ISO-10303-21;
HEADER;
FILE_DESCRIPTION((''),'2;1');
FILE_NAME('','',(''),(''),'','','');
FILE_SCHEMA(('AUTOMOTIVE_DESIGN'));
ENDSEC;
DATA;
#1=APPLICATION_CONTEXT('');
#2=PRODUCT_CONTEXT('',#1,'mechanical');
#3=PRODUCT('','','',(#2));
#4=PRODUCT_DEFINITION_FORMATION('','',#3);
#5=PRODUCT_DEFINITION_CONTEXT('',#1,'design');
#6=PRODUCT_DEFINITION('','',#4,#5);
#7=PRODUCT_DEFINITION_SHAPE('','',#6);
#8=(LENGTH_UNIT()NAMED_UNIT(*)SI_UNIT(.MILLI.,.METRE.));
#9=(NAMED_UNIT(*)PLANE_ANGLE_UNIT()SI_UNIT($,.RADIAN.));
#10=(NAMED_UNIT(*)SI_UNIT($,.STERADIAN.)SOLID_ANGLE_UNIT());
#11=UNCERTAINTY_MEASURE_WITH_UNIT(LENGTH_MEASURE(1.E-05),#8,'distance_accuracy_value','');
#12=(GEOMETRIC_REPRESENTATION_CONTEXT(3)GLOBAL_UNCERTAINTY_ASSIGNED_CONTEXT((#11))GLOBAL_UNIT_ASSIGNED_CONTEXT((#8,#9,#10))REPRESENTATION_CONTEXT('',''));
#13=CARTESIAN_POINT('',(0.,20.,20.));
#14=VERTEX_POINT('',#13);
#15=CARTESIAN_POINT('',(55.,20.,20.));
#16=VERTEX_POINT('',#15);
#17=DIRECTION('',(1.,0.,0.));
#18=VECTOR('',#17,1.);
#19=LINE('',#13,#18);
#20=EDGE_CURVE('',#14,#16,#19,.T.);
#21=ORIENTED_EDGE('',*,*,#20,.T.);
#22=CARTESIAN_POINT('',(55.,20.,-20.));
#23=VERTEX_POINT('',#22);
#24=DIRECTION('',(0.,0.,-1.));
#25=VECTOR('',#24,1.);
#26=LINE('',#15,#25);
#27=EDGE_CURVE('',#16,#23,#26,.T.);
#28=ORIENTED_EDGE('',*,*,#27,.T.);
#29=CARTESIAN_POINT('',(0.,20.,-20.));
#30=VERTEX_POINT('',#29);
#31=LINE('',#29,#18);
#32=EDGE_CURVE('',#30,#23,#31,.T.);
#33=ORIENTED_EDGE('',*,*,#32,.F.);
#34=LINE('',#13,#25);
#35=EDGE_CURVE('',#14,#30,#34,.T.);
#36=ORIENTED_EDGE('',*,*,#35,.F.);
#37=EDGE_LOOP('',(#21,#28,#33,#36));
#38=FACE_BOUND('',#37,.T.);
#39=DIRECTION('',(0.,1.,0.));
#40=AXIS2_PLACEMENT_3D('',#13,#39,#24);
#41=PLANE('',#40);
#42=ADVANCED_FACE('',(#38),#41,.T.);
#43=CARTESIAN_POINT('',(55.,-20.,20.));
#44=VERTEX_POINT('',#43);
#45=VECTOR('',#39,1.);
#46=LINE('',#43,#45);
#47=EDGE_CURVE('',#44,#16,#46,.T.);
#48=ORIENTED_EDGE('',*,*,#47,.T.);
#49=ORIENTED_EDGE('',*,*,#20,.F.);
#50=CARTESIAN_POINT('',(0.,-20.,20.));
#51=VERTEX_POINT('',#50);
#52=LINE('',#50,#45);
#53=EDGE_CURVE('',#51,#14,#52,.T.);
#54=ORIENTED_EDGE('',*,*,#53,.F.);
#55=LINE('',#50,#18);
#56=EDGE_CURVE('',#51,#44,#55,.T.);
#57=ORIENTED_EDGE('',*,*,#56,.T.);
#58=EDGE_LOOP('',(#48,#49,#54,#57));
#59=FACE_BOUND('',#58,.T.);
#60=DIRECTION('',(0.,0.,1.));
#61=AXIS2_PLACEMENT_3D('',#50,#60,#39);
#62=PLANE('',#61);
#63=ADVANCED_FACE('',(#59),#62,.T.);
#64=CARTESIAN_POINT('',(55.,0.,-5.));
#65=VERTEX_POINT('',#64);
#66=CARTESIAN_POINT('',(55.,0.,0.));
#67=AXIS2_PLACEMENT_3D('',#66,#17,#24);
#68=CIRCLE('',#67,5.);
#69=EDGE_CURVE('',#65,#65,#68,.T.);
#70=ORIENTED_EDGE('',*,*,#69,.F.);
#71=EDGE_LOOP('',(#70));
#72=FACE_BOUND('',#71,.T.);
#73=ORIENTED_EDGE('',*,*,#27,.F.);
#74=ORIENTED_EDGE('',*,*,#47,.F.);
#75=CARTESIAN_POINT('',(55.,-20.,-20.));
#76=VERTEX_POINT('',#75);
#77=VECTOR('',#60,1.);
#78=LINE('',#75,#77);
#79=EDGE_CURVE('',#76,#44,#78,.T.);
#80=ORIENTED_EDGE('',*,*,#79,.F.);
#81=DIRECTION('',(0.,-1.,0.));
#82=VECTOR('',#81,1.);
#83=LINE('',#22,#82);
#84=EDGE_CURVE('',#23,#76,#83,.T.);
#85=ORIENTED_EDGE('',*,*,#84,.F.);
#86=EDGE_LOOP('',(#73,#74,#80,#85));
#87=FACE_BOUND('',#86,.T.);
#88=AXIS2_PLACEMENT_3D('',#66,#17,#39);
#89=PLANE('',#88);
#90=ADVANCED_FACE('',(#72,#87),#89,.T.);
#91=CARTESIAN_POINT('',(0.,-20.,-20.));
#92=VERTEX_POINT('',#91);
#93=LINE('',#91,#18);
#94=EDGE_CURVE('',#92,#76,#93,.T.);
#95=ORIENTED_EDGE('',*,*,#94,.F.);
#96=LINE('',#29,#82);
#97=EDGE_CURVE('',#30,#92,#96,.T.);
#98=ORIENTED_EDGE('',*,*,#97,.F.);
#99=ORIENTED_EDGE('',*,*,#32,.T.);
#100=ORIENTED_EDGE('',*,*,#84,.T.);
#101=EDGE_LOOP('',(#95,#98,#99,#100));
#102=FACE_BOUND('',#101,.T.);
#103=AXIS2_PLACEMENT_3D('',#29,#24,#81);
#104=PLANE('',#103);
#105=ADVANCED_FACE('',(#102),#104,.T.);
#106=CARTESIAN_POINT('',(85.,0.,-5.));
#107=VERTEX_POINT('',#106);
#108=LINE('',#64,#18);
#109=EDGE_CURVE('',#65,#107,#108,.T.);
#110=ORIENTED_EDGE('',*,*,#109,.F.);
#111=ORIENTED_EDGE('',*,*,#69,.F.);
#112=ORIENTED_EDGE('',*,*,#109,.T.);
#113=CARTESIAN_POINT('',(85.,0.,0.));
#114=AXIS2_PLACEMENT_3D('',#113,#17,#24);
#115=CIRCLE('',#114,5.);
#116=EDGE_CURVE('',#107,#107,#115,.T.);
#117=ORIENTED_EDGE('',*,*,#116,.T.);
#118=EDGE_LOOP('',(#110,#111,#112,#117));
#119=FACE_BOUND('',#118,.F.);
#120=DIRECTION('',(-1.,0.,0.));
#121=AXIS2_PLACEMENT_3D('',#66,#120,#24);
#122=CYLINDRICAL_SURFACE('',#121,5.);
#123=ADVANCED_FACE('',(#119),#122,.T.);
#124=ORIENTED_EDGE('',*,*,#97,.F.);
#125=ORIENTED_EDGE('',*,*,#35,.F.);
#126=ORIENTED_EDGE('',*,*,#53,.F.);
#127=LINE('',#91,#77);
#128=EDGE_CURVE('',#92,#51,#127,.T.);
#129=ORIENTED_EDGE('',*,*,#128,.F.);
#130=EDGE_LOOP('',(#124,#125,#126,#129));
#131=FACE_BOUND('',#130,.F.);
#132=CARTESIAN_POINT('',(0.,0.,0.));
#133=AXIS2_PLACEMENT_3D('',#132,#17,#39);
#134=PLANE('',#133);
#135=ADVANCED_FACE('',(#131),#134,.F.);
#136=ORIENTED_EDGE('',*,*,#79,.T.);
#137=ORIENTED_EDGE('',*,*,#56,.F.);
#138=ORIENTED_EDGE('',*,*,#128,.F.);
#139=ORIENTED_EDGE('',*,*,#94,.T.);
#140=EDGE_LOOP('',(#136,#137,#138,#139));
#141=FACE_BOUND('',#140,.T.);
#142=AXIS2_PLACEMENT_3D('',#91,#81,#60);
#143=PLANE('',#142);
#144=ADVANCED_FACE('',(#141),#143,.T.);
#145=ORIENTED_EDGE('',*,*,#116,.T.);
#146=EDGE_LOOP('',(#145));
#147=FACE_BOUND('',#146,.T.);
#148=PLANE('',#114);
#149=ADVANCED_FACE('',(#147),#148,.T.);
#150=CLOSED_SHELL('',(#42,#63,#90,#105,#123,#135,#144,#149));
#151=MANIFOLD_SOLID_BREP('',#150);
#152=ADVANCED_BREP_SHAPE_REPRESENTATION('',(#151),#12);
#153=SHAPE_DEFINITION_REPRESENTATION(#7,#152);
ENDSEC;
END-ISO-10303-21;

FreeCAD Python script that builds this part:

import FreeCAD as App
import Part
import Sketcher
Q = App.Units.Quantity


def add_polygon(sketch, points):
    """Adds a closed chain of lines whose ends are joined by coincident constraints."""
    first, n = sketch.GeometryCount, len(points)
    for a, b in zip(points, points[1:] + points[:1]):
        sketch.addGeometry(Part.LineSegment(App.Vector(*a, 0), App.Vector(*b, 0)), False)
    for i in range(n):
        sketch.addConstraint(Sketcher.Constraint("Coincident", first + i, 2, first + (i + 1) % n, 1))

doc = App.newDocument("Part")
body = doc.addObject("PartDesign::Body", "Body")

# Sketch on YZ plane
sketch1 = body.newObject("Sketcher::SketchObject", "Sketch")
sketch1.AttachmentSupport = (doc.getObject("YZ_Plane"), [""])
sketch1.MapMode = "FlatFace"
add_polygon(sketch1, [(20, 20), (-20, 20), (-20, -20), (20, -20)])  # lines 0-3
sketch1.addConstraint([
    Sketcher.Constraint("Horizontal", 0),
    Sketcher.Constraint("Vertical", 1),
    Sketcher.Constraint("Horizontal", 2),
    Sketcher.Constraint("Vertical", 3),
    Sketcher.Constraint("Symmetric", 0, 2, 2, 2, -1, 1),
    Sketcher.Constraint("Equal", 2, 1),
    Sketcher.Constraint("DistanceX", 0, 2, 0, 1, Q("40 mm")),
])
pad1 = body.newObject("PartDesign::Pad", "Pad")
pad1.Profile = sketch1
pad1.Length = 55

# Sketch on YZ plane
sketch2 = body.newObject("Sketcher::SketchObject", "Sketch001")
sketch2.AttachmentSupport = (doc.getObject("YZ_Plane"), [""])
sketch2.MapMode = "FlatFace"
sketch2.AttachmentOffset = App.Placement(App.Vector(0, 0, 55), App.Rotation())
sketch2.addGeometry(Part.Circle(App.Vector(0, 0, 0), App.Vector(0, 0, 1), 5), False)
sketch2.addConstraint([
    Sketcher.Constraint("Coincident", 0, 3, -1, 1),
    Sketcher.Constraint("Diameter", 0, Q("10 mm")),
])
pad2 = body.newObject("PartDesign::Pad", "Pad001")
pad2.Profile = sketch2
pad2.Length = 30

doc.recompute()
